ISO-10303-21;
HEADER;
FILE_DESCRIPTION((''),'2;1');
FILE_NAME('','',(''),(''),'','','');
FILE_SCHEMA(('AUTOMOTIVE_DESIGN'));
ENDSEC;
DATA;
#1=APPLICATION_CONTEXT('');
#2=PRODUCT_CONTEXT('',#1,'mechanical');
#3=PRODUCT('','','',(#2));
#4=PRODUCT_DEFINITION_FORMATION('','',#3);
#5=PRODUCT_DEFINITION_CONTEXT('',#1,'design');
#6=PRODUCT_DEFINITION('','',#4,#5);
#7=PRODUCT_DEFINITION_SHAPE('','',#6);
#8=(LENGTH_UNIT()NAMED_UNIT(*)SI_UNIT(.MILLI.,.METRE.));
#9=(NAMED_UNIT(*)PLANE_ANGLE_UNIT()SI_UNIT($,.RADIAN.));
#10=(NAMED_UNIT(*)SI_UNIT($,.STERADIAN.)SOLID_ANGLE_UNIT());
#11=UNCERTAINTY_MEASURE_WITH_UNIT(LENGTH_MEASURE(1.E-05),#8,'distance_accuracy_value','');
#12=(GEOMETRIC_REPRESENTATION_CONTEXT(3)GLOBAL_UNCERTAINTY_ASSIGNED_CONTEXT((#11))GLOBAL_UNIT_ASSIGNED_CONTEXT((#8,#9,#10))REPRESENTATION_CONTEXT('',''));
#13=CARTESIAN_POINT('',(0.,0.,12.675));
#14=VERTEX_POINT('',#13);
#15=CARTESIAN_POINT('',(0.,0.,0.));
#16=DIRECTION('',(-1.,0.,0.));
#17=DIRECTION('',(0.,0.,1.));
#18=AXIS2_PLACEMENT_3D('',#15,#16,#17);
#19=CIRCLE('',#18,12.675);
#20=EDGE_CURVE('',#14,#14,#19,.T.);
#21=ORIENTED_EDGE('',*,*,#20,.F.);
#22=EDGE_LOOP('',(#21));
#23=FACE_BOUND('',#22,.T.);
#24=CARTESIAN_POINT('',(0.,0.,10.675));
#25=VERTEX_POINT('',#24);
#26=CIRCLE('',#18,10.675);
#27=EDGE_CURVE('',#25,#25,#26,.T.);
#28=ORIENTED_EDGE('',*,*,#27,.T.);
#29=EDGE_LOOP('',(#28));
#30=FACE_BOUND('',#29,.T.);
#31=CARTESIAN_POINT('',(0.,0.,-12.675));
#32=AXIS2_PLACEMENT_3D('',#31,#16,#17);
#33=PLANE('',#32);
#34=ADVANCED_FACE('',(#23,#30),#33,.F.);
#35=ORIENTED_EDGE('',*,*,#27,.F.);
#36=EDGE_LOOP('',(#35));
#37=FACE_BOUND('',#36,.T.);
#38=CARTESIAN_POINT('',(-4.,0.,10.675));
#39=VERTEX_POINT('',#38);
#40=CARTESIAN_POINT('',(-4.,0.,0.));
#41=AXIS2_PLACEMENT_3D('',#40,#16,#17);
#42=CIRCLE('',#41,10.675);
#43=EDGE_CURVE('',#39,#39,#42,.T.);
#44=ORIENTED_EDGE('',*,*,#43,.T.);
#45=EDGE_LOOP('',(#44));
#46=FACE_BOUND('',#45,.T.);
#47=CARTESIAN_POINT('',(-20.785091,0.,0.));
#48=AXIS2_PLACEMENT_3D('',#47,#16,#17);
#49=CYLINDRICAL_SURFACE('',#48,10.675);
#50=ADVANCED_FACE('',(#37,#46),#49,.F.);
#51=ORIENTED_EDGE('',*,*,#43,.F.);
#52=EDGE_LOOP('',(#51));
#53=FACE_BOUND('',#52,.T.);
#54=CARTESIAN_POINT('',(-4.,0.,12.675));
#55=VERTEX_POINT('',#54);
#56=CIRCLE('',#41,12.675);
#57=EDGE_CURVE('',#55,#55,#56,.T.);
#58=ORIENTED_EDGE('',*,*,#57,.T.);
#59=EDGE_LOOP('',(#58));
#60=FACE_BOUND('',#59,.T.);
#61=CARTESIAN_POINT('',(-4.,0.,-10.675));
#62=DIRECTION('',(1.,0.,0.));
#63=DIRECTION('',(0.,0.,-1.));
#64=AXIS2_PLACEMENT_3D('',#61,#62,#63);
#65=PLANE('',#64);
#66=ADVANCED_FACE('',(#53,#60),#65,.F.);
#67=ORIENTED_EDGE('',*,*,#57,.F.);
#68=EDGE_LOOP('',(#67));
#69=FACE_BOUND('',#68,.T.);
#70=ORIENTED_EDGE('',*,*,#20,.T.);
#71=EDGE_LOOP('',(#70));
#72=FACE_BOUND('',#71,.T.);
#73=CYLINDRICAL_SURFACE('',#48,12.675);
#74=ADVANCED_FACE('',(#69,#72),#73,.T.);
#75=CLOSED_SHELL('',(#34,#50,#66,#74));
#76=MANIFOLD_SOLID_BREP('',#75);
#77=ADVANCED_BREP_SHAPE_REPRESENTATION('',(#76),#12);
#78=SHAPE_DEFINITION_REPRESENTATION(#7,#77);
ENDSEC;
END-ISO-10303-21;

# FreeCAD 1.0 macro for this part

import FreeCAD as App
import Part
import Sketcher

V = App.Vector


def add_polygon(sketch, points):
    """Adds a closed chain of lines whose ends are joined by coincident constraints."""
    first, n = sketch.GeometryCount, len(points)
    for a, b in zip(points, points[1:] + points[:1]):
        sketch.addGeometry(Part.LineSegment(App.Vector(*a, 0), App.Vector(*b, 0)), False)
    for i in range(n):
        sketch.addConstraint(Sketcher.Constraint("Coincident", first + i, 2, first + (i + 1) % n, 1))

doc = App.newDocument("Part")
body = doc.addObject("PartDesign::Body", "Body")

sketch1 = body.newObject("Sketcher::SketchObject", "Sketch")
sketch1.AttachmentSupport = (doc.getObject("XZ_Plane"), [""])
sketch1.MapMode = "FlatFace"
add_polygon(sketch1, [(-4, -12.7), (-4, -10.7), (0, -10.7), (0, -12.7)])
sketch1.addConstraint(Sketcher.Constraint("Vertical", 0))
sketch1.addConstraint(Sketcher.Constraint("Horizontal", 1))
sketch1.addConstraint(Sketcher.Constraint("Vertical", 2))
sketch1.addConstraint(Sketcher.Constraint("Horizontal", 3))
sketch1.addConstraint(Sketcher.Constraint("PointOnObject", 1, 2, -2))
sketch1.addConstraint(Sketcher.Constraint("DistanceX", 1, 1, 1, 2, 4.0))
sketch1.addConstraint(Sketcher.Constraint("DistanceY", 0, 1, 0, 2, 2.0))
sketch1.addConstraint(Sketcher.Constraint("DistanceY", 0, 2, -1, 1, 10.675))
revolution = body.newObject("PartDesign::Revolution", "Revolution")
revolution.Profile = sketch1
revolution.ReferenceAxis = (sketch1, ["H_Axis"])
revolution.Angle = 360

doc.recompute()
